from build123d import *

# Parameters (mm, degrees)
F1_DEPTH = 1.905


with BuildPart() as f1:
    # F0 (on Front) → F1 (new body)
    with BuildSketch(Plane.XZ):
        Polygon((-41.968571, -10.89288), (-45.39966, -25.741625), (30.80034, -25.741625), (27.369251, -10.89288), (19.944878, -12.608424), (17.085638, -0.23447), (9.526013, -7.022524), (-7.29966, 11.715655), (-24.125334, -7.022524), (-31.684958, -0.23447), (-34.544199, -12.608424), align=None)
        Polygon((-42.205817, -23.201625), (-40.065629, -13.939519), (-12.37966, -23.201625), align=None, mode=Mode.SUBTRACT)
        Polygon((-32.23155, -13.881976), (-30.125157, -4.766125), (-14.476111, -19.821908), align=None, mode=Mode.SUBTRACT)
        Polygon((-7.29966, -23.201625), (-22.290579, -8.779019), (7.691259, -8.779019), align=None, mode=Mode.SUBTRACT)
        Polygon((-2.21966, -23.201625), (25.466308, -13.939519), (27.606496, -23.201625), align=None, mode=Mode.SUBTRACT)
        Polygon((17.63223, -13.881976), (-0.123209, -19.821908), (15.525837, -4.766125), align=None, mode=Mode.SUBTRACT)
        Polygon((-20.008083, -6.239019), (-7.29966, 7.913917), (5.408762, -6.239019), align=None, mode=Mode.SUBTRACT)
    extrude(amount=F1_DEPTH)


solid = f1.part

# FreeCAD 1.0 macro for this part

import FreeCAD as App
import Part
import Sketcher
Q = App.Units.Quantity


def add_polygon(sketch, points):
    """Adds a closed chain of lines whose ends are joined by coincident constraints."""
    first, n = sketch.GeometryCount, len(points)
    for a, b in zip(points, points[1:] + points[:1]):
        sketch.addGeometry(Part.LineSegment(App.Vector(*a, 0), App.Vector(*b, 0)), False)
    for i in range(n):
        sketch.addConstraint(Sketcher.Constraint("Coincident", first + i, 2, first + (i + 1) % n, 1))

doc = App.newDocument("Part")
body = doc.addObject("PartDesign::Body", "Body")

# Sketch on XZ plane
sketch1 = body.newObject("Sketcher::SketchObject", "Sketch")
sketch1.AttachmentSupport = (doc.getObject("XZ_Plane"), [""])
sketch1.MapMode = "FlatFace"
add_polygon(sketch1, [(-42, -11), (-45, -26), (31, -26), (27, -11), (20, -13), (17, 0), (10, -7), (-7, 12), (-24, -7), (-32, 0), (-35, -13)])  # lines 0-10
add_polygon(sketch1, [(-12, -23), (-42, -23), (-40, -14)])  # lines 11-13
add_polygon(sketch1, [(-14, -20), (-32, -14), (-30, -5)])  # lines 14-16
add_polygon(sketch1, [(8, -9), (-7, -23), (-22, -9)])  # lines 17-19
add_polygon(sketch1, [(28, -23), (-2, -23), (25, -14)])  # lines 20-22
add_polygon(sketch1, [(16, -5), (18, -14), (0, -20)])  # lines 23-25
add_polygon(sketch1, [(5, -6), (-20, -6), (-7, 8)])  # lines 26-28
sketch1.addConstraint([
    Sketcher.Constraint("Horizontal", 1),
    Sketcher.Constraint("Horizontal", 11),
    Sketcher.Constraint("Horizontal", 19),
    Sketcher.Constraint("Horizontal", 20),
    Sketcher.Constraint("Horizontal", 26),
    Sketcher.Constraint("Perpendicular", 2, 3),
    Sketcher.Constraint("Perpendicular", 3, 4),
    Sketcher.Constraint("Perpendicular", 5, 6),
    Sketcher.Constraint("Perpendicular", 7, 8),
    Sketcher.Constraint("Parallel", 0, 9),
    Sketcher.Constraint("Perpendicular", 9, 10),
    Sketcher.Constraint("Perpendicular", 10, 12),
    Sketcher.Constraint("Parallel", 13, 14),
    Sketcher.Constraint("Parallel", 12, 15),
    Sketcher.Constraint("Parallel", 16, 18),
    Sketcher.Constraint("Parallel", 4, 22),
    Sketcher.Constraint("Parallel", 22, 23),
    Sketcher.Constraint("Parallel", 21, 24),
    Sketcher.Constraint("Parallel", 17, 25),
    Sketcher.Constraint("Perpendicular", 8, 27),
    Sketcher.Constraint("Parallel", 6, 28),
    Sketcher.Constraint("Horizontal", 5, 2, 7, 2),
    Sketcher.Constraint("Horizontal", 4, 2, 8, 2),
    Sketcher.Constraint("Horizontal", 3, 2, 9, 2),
    Sketcher.Constraint("Horizontal", 2, 2, 10, 2),
    Sketcher.Constraint("Horizontal", 13, 2, 17, 2),
    Sketcher.Constraint("Horizontal", 17, 2, 20, 2),
    Sketcher.Constraint("Horizontal", 12, 2, 21, 2),
    Sketcher.Constraint("Horizontal", 14, 2, 23, 2),
    Sketcher.Constraint("Horizontal", 16, 2, 24, 2),
    Sketcher.Constraint("Horizontal", 15, 2, 25, 2),
    Sketcher.Constraint("Vertical", 6, 2, 17, 2),
    Sketcher.Constraint("Vertical", 17, 2, 27, 2),
    Sketcher.Constraint("Equal", 11, 20),
    Sketcher.Constraint("Equal", 0, 2),
    Sketcher.Constraint("Equal", 6, 7),
    Sketcher.Constraint("DistanceX", 1, 1, 1, 2, Q("3 in")),
    Sketcher.Constraint("Distance", 0, Q("0.6 in")),
    Sketcher.Constraint("Distance", 3, Q("0.3 in")),
    Sketcher.Constraint("Distance", 4, Q("0.5 in")),
    Sketcher.Constraint("Distance", 5, Q("0.4 in")),
    Sketcher.Constraint("DistanceY", 0, 2, 11, 2, Q("0.1 in")),
    Sketcher.Constraint("DistanceX", 13, 2, 17, 2, Q("0.2 in")),
    Sketcher.Constraint("DistanceX", 17, 2, 20, 2, Q("0.2 in")),
    Sketcher.Constraint("DistanceY", 18, 2, 26, 2, Q("0.1 in")),
    Sketcher.Constraint("DistanceY", 12, 2, -1, 1, Q("0.5488 in")),
    Sketcher.Constraint("DistanceY", 2, 2, 6, 2, Q("0.8900998 in")),
    Sketcher.Constraint("DistanceX", 19, 1, 19, 2, 29.981838),
    Sketcher.Constraint("DistanceX", 9, 2, -1, 1, 34.544199),
    Sketcher.Constraint("DistanceY", 1, 2, 3, 2, 13.133201),
    Sketcher.Constraint("DistanceX", 8, 2, 15, 2, 1.559801),
    Sketcher.Constraint("DistanceY", 7, 2, 15, 2, 2.256399),
    Sketcher.Constraint("DistanceX", 25, 2, 4, 2, 1.559801),
    Sketcher.Constraint("Distance", 13, 29.194169),
    Sketcher.Constraint("Distance", 14, 18.722671),
    Sketcher.Constraint("DistanceX", 11, 2, 11, 1, 29.826157),
    Sketcher.Constraint("DistanceX", 26, 2, 26, 1, 25.416845),
    Sketcher.Constraint("DistanceX", 14, 2, -1, 1, 32.23155),
])
pad1 = body.newObject("PartDesign::Pad", "Pad")
pad1.Profile = sketch1
pad1.Length = Q("0.075 in")

doc.recompute()
